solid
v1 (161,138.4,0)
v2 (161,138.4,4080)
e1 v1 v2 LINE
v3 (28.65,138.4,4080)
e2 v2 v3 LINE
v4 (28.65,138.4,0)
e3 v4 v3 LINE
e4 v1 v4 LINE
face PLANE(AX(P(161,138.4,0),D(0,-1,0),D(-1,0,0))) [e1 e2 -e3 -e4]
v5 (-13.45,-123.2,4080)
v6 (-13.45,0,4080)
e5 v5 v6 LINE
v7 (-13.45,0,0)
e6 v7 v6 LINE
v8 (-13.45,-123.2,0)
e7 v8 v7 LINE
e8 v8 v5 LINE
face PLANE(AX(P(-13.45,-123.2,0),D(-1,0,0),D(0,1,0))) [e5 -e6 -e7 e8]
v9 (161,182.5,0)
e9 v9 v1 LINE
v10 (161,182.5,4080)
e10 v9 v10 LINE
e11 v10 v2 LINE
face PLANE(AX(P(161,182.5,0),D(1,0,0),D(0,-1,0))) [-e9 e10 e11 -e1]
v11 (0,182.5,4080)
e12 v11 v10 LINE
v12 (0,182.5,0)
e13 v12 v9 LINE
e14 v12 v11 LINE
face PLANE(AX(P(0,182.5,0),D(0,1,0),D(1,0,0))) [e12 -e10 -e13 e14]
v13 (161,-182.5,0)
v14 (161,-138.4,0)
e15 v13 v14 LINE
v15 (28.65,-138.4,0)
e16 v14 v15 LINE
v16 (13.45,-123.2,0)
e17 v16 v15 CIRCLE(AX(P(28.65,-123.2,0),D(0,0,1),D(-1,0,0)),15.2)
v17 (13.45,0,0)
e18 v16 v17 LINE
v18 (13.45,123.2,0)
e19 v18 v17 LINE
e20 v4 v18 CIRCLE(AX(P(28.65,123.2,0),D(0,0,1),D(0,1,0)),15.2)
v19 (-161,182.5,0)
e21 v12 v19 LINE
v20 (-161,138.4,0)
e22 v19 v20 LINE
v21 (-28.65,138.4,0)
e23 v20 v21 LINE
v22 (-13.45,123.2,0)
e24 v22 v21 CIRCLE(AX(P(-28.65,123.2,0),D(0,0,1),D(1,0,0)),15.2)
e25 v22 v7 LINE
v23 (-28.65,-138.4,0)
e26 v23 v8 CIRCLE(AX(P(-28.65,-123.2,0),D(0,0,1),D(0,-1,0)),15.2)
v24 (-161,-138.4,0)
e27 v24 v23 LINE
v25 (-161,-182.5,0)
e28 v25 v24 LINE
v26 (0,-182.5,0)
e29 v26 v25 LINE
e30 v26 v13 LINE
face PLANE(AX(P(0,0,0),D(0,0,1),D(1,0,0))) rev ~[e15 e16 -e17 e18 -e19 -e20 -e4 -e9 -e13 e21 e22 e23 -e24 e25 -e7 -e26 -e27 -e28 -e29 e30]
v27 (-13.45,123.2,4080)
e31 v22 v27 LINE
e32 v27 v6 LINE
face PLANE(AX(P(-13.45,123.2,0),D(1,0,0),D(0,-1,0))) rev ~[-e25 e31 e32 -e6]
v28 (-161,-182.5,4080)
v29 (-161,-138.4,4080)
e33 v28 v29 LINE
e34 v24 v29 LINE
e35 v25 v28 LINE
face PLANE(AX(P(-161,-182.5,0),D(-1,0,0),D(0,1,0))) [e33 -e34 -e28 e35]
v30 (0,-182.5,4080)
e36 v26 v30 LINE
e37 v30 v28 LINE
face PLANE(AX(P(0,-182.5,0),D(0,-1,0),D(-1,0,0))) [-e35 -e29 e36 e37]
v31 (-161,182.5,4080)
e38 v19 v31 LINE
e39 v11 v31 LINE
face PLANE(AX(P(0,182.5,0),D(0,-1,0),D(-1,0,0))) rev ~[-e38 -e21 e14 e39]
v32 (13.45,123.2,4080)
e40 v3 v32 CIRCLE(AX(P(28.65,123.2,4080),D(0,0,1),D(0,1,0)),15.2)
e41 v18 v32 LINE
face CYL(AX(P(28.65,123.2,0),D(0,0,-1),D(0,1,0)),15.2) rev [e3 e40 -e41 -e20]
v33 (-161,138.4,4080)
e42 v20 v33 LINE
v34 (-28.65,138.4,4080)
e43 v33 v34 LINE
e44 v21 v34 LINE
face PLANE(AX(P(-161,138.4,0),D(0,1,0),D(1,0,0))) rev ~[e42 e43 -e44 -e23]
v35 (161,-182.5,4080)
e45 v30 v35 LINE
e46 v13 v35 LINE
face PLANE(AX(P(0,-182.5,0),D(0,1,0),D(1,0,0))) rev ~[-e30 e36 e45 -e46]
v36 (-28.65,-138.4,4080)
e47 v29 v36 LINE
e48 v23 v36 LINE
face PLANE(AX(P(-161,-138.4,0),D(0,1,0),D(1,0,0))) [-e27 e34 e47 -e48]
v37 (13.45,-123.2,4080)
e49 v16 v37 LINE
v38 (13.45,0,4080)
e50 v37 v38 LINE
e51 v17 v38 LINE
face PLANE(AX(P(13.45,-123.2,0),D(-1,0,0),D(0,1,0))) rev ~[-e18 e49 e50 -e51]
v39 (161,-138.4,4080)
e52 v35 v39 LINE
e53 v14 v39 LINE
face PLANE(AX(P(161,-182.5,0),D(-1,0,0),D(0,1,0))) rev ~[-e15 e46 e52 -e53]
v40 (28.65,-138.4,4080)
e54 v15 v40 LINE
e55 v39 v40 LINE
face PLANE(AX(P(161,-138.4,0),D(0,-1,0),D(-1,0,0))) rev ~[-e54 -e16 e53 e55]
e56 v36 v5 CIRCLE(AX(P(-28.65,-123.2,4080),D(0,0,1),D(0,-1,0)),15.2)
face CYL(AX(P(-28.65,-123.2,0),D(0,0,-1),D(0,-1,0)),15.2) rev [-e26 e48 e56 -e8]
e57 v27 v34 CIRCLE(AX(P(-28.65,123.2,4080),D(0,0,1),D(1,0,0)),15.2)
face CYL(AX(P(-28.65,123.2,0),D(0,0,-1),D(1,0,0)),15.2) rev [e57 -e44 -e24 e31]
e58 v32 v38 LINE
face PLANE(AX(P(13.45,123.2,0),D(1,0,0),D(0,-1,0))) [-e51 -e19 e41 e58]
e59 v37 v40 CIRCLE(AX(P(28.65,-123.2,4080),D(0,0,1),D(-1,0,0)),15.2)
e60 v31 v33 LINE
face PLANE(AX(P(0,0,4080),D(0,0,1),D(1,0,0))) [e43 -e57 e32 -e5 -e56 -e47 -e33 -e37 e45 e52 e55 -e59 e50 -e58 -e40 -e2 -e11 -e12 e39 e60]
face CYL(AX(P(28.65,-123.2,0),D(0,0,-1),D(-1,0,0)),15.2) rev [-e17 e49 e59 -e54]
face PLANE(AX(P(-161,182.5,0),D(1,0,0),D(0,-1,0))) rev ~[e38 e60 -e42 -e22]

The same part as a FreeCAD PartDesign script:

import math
import FreeCAD as App
import Part
import Sketcher

V = App.Vector
Q = App.Units.Quantity

doc = App.newDocument("Part")
params = doc.addObject("Spreadsheet::Sheet", "Params")
for row, (alias, value) in enumerate([
    ("sketch1_radius", "15.2 mm"),
    ("sketch1_height", "44.1 mm"),
    ("pad1_length", "4080 mm"),
], start=1):
    params.set(f"A{row}", alias)
    params.set(f"B{row}", "=" + value)
    params.setAlias(f"B{row}", alias)

body = doc.addObject("PartDesign::Body", "Body")

sketch1 = body.newObject("Sketcher::SketchObject", "Sketch")
sketch1.AttachmentSupport = (doc.getObject("XY_Plane"), [""])
sketch1.MapMode = "FlatFace"
sketch1.addGeometry([
    Part.LineSegment(V(-161, -138, 0), V(-161, -182, 0)),
    Part.LineSegment(V(-161, -182, 0), V(161, -182, 0)),
    Part.LineSegment(V(161, -182, 0), V(161, -138, 0)),
    Part.LineSegment(V(161, -138, 0), V(29, -138, 0)),
    Part.ArcOfCircle(Part.Circle(V(29, -123, 0), V(0, 0, 1), 15), math.radians(180), math.radians(270)),
    Part.LineSegment(V(13, -123, 0), V(13, 123, 0)),
    Part.ArcOfCircle(Part.Circle(V(29, 123, 0), V(0, 0, 1), 15), math.radians(90), math.radians(180)),
    Part.LineSegment(V(29, 138, 0), V(161, 138, 0)),
    Part.LineSegment(V(161, 138, 0), V(161, 182, 0)),
    Part.LineSegment(V(161, 182, 0), V(-161, 182, 0)),
    Part.LineSegment(V(-161, 182, 0), V(-161, 138, 0)),
    Part.LineSegment(V(-161, 138, 0), V(-29, 138, 0)),
    Part.ArcOfCircle(Part.Circle(V(-29, 123, 0), V(0, 0, 1), 15), math.radians(0), math.radians(90)),
    Part.LineSegment(V(-13, 123, 0), V(-13, -123, 0)),
    Part.ArcOfCircle(Part.Circle(V(-29, -123, 0), V(0, 0, 1), 15), math.radians(-90), math.radians(0)),
    Part.LineSegment(V(-29, -138, 0), V(-161, -138, 0)),
], False)
sketch1.addConstraint([
    Sketcher.Constraint("Coincident", 0, 2, 1, 1),
    Sketcher.Constraint("Coincident", 1, 2, 2, 1),
    Sketcher.Constraint("Coincident", 2, 2, 3, 1),
    Sketcher.Constraint("Tangent", 3, 2, 4, 2),
    Sketcher.Constraint("Tangent", 4, 1, 5, 1),
    Sketcher.Constraint("Tangent", 5, 2, 6, 2),
    Sketcher.Constraint("Tangent", 6, 1, 7, 1),
    Sketcher.Constraint("Coincident", 7, 2, 8, 1),
    Sketcher.Constraint("Coincident", 8, 2, 9, 1),
    Sketcher.Constraint("Coincident", 9, 2, 10, 1),
    Sketcher.Constraint("Coincident", 10, 2, 11, 1),
    Sketcher.Constraint("Tangent", 11, 2, 12, 2),
    Sketcher.Constraint("Tangent", 12, 1, 13, 1),
    Sketcher.Constraint("Tangent", 13, 2, 14, 2),
    Sketcher.Constraint("Tangent", 14, 1, 15, 1),
    Sketcher.Constraint("Coincident", 15, 2, 0, 1),
    Sketcher.Constraint("Vertical", 0),
    Sketcher.Constraint("Horizontal", 1),
    Sketcher.Constraint("Vertical", 2),
    Sketcher.Constraint("Horizontal", 3),
    Sketcher.Constraint("Vertical", 5),
    Sketcher.Constraint("Horizontal", 7),
    Sketcher.Constraint("Vertical", 8),
    Sketcher.Constraint("Horizontal", 9),
    Sketcher.Constraint("Vertical", 10),
    Sketcher.Constraint("Horizontal", 11),
    Sketcher.Constraint("Vertical", 13),
    Sketcher.Constraint("Horizontal", 15),
    Sketcher.Constraint("Equal", 4, 6),
    Sketcher.Constraint("Equal", 6, 12),
    Sketcher.Constraint("Equal", 12, 14),
    Sketcher.Constraint("Symmetric", 4, 3, 12, 3, -1, 1),
    Sketcher.Constraint("Symmetric", 0, 2, 8, 2, -1, 1),
    Sketcher.Constraint("Symmetric", 7, 2, 10, 2, -2),
    Sketcher.Constraint("Symmetric", 2, 2, 15, 2, -2),
    Sketcher.Constraint("Radius", 4, Q("15.2 mm")),
    Sketcher.Constraint("DistanceY", 0, 2, 0, 1, Q("44.1 mm")),
    Sketcher.Constraint("DistanceX", 0, 2, -1, 1, Q("161 mm")),
    Sketcher.Constraint("DistanceY", 0, 2, -1, 1, Q("182.5 mm")),
    Sketcher.Constraint("DistanceX", -1, 1, 4, 1, Q("13.45 mm")),
])
sketch1.setExpression("Constraints[35]", "Params.sketch1_radius")
sketch1.setExpression("Constraints[36]", "Params.sketch1_height")
pad1 = body.newObject("PartDesign::Pad", "Pad")
pad1.Profile = sketch1
pad1.setExpression("Length", "Params.pad1_length")

doc.recompute()
